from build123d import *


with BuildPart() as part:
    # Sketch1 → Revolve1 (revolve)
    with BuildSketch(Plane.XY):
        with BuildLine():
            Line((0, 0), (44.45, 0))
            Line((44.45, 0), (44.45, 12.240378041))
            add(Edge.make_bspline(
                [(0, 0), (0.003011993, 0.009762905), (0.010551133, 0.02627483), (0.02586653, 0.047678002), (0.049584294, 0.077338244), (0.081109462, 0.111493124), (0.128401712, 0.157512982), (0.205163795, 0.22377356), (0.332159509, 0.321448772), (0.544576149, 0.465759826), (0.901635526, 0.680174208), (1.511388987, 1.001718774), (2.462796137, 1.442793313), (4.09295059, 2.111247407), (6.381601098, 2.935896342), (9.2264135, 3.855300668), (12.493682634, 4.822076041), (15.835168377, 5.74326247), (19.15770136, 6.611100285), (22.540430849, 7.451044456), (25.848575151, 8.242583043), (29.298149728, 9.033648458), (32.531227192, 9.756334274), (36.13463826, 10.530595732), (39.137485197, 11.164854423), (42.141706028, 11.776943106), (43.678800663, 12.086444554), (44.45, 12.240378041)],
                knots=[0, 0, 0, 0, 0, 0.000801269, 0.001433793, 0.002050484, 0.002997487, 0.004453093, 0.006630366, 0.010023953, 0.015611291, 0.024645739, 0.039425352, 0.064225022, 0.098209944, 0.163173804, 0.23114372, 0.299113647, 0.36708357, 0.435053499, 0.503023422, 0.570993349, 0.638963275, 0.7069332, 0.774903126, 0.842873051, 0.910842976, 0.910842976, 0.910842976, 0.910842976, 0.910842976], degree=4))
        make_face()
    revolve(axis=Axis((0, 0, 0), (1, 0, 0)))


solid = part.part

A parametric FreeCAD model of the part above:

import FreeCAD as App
import Part
import Sketcher

V = App.Vector

doc = App.newDocument("Part")
body = doc.addObject("PartDesign::Body", "Body")

# Sketch on XY plane
sketch1 = body.newObject("Sketcher::SketchObject", "Sketch")
sketch1.AttachmentSupport = (doc.getObject("XY_Plane"), [""])
sketch1.MapMode = "FlatFace"
sketch1.addGeometry(Part.LineSegment(V(0, 0, 0), V(44.45, 0, 0)), False)
sketch1.addGeometry(Part.LineSegment(V(44.45, 0, 0), V(44.45, 12.240378, 0)), False)
sketch1.addGeometry(Part.BSplineCurve([V(0, 0, 0), V(0.003012, 0.009763, 0), V(0.010551, 0.026275, 0), V(0.025867, 0.047678, 0), V(0.049584, 0.077338, 0), V(0.081109, 0.111493, 0), V(0.128402, 0.157513, 0), V(0.205164, 0.223774, 0), V(0.33216, 0.321449, 0), V(0.544576, 0.46576, 0), V(0.901636, 0.680174, 0), V(1.511389, 1.001719, 0), V(2.462796, 1.442793, 0), V(4.092951, 2.111247, 0), V(6.381601, 2.935896, 0), V(9.226413, 3.855301, 0), V(12.493683, 4.822076, 0), V(15.835168, 5.743262, 0), V(19.157701, 6.6111, 0), V(22.540431, 7.451044, 0), V(25.848575, 8.242583, 0), V(29.29815, 9.033648, 0), V(32.531227, 9.756334, 0), V(36.134638, 10.530596, 0), V(39.137485, 11.164854, 0), V(42.141706, 11.776943, 0), V(43.678801, 12.086445, 0), V(44.45, 12.240378, 0)], [5, 1, 1, 1, 1, 1, 1, 1, 1, 1, 1, 1, 1, 1, 1, 1, 1, 1, 1, 1, 1, 1, 1, 1, 5], [0, 0.000801269, 0.001433793, 0.002050484, 0.002997487, 0.004453093, 0.006630366, 0.010023953, 0.015611291, 0.024645739, 0.039425352, 0.064225022, 0.098209944, 0.163173804, 0.23114372, 0.299113647, 0.36708357, 0.435053499, 0.503023422, 0.570993349, 0.638963275, 0.7069332, 0.774903126, 0.842873051, 0.910842976], False, 4, [1, 1, 1, 1, 1, 1, 1, 1, 1, 1, 1, 1, 1, 1, 1, 1, 1, 1, 1, 1, 1, 1, 1, 1, 1, 1, 1, 1], False), False)
sketch1.addConstraint(Sketcher.Constraint("Block", 2))
sketch1.addConstraint(Sketcher.Constraint("Coincident", 0, 2, 1, 1))
sketch1.addConstraint(Sketcher.Constraint("Coincident", 1, 2, 2, 2))
sketch1.addConstraint(Sketcher.Constraint("Coincident", 2, 1, 0, 1))
sketch1.addConstraint(Sketcher.Constraint("Horizontal", 0))
sketch1.addConstraint(Sketcher.Constraint("Vertical", 1))
revolution = body.newObject("PartDesign::Revolution", "Revolution")
revolution.Profile = sketch1
revolution.ReferenceAxis = (sketch1, ["H_Axis"])
revolution.Angle = 360

doc.recompute()
